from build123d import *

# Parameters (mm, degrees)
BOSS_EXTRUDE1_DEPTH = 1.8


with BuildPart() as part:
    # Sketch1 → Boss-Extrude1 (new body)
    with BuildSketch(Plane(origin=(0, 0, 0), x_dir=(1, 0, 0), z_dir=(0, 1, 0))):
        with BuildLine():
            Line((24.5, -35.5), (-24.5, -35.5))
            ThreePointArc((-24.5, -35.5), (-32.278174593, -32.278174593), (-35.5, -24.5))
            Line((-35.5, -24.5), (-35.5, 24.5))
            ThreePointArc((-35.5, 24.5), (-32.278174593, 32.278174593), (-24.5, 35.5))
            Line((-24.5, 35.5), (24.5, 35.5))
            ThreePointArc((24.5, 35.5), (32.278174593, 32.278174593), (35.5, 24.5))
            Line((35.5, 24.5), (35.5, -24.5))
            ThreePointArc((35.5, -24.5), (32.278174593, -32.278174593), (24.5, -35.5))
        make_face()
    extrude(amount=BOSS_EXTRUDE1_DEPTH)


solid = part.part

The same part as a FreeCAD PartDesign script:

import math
import FreeCAD as App
import Part
import Sketcher
from FreeCAD import Vector
Q = App.Units.Quantity

doc = App.newDocument("Part")
body = doc.addObject("PartDesign::Body", "Body")

sketch1 = doc.addObject("Sketcher::SketchObject", "Sketch")
body.addObject(sketch1)
sketch1.AttachmentSupport = (doc.XZ_Plane, [""])
sketch1.MapMode = "FlatFace"
sketch1.addGeometry([
    Part.LineSegment(Vector(-24, 36, 0), Vector(24, 36, 0)),
    Part.ArcOfCircle(Part.Circle(Vector(24, 24, 0), Vector(0, 0, 1), 11), math.radians(0), math.radians(90)),
    Part.LineSegment(Vector(36, 24, 0), Vector(36, -24, 0)),
    Part.ArcOfCircle(Part.Circle(Vector(24, -24, 0), Vector(0, 0, 1), 11), math.radians(-90), math.radians(0)),
    Part.LineSegment(Vector(24, -36, 0), Vector(-24, -36, 0)),
    Part.ArcOfCircle(Part.Circle(Vector(-24, -24, 0), Vector(0, 0, 1), 11), math.radians(180), math.radians(270)),
    Part.LineSegment(Vector(-36, -24, 0), Vector(-36, 24, 0)),
    Part.ArcOfCircle(Part.Circle(Vector(-24, 24, 0), Vector(0, 0, 1), 11), math.radians(90), math.radians(180)),
], False)
sketch1.addConstraint([
    Sketcher.Constraint("Tangent", 0, 2, 1, 2),
    Sketcher.Constraint("Tangent", 1, 1, 2, 1),
    Sketcher.Constraint("Tangent", 2, 2, 3, 2),
    Sketcher.Constraint("Tangent", 3, 1, 4, 1),
    Sketcher.Constraint("Tangent", 4, 2, 5, 2),
    Sketcher.Constraint("Tangent", 5, 1, 6, 1),
    Sketcher.Constraint("Tangent", 6, 2, 7, 2),
    Sketcher.Constraint("Tangent", 7, 1, 0, 1),
    Sketcher.Constraint("Horizontal", 0),
    Sketcher.Constraint("Vertical", 2),
    Sketcher.Constraint("Horizontal", 4),
    Sketcher.Constraint("Vertical", 6),
    Sketcher.Constraint("Equal", 1, 3),
    Sketcher.Constraint("Equal", 3, 5),
    Sketcher.Constraint("Equal", 5, 7),
    Sketcher.Constraint("Symmetric", 1, 3, 5, 3, -1, 1),
    Sketcher.Constraint("Equal", 4, 2),
    Sketcher.Constraint("Radius", 1, Q("11 mm")),
    Sketcher.Constraint("DistanceX", 0, 1, 0, 2, Q("49 mm")),
])
pad1 = doc.addObject("PartDesign::Pad", "Pad")
body.addObject(pad1)
pad1.Profile = sketch1
pad1.Length = 1.8
pad1.Reversed = True

doc.recompute()
